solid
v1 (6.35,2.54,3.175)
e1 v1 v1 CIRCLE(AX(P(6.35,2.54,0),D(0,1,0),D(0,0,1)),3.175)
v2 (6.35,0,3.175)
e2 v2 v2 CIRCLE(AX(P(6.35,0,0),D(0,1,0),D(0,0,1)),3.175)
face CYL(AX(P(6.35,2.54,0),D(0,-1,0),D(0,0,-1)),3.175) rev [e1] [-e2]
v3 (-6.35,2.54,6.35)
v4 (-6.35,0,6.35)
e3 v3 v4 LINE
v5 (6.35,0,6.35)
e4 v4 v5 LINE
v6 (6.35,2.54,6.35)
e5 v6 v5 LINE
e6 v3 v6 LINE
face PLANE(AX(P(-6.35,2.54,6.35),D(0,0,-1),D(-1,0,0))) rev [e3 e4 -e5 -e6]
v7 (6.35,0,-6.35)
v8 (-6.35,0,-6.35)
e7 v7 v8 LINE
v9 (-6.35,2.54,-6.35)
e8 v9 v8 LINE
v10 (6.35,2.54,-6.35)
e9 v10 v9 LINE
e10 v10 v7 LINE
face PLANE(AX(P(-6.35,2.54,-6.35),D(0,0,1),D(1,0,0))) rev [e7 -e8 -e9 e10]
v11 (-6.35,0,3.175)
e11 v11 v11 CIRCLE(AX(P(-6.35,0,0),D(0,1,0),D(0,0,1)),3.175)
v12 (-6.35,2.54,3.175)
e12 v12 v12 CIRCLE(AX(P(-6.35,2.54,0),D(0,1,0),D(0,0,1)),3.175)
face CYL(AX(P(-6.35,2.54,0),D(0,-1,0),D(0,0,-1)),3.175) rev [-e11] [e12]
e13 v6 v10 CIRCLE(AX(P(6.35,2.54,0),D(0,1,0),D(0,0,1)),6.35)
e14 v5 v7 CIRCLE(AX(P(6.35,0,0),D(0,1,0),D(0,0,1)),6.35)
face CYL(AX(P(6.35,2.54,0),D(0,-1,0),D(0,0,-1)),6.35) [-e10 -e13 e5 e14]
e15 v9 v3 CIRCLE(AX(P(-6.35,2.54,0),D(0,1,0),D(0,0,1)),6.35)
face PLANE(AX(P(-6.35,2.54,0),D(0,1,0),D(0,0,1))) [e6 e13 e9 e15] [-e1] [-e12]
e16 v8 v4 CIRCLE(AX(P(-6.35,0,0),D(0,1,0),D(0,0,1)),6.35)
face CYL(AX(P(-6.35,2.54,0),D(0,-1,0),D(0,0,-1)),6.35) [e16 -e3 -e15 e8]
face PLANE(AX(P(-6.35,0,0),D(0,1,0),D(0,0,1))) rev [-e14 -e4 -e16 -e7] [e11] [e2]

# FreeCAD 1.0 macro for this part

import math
import FreeCAD as App
import Part
import Sketcher

V = App.Vector
Q = App.Units.Quantity

doc = App.newDocument("Part")
body = doc.addObject("PartDesign::Body", "Body")

# Sketch on XZ plane
sketch1 = body.newObject("Sketcher::SketchObject", "Sketch")
sketch1.AttachmentSupport = (doc.getObject("XZ_Plane"), [""])
sketch1.MapMode = "FlatFace"
sketch1.addGeometry([
    Part.LineSegment(V(6.3, -6.3, 0), V(-6.3, -6.3, 0)),  # 0
    Part.ArcOfCircle(Part.Circle(V(-6.3, 0, 0), V(0, 0, 1), 6.3), math.radians(90), math.radians(270)),  # 1
    Part.LineSegment(V(-6.3, 6.3, 0), V(6.3, 6.3, 0)),  # 2
    Part.ArcOfCircle(Part.Circle(V(6.3, 0, 0), V(0, 0, 1), 6.3), math.radians(-90), math.radians(90)),  # 3
    Part.Circle(V(6.3, 0, 0), V(0, 0, 1), 3.2),  # 4
    Part.Circle(V(-6.3, 0, 0), V(0, 0, 1), 3.2),  # 5
], False)
sketch1.addConstraint([
    Sketcher.Constraint("Tangent", 0, 2, 1, 2),
    Sketcher.Constraint("Tangent", 1, 1, 2, 1),
    Sketcher.Constraint("Tangent", 2, 2, 3, 2),
    Sketcher.Constraint("Tangent", 3, 1, 0, 1),
    Sketcher.Constraint("Horizontal", 0),
    Sketcher.Constraint("Horizontal", 2),
    Sketcher.Constraint("Coincident", 4, 3, 3, 3),
    Sketcher.Constraint("Coincident", 5, 3, 1, 3),
    Sketcher.Constraint("Equal", 4, 5),
    Sketcher.Constraint("Symmetric", 1, 3, 3, 3, -1, 1),
    Sketcher.Constraint("Diameter", 4, Q("0.25 in")),
    Sketcher.Constraint("Radius", 1, Q("0.25 in")),
    Sketcher.Constraint("DistanceX", 0, 2, 0, 1, Q("0.5 in")),
])
pad1 = body.newObject("PartDesign::Pad", "Pad")
pad1.Profile = sketch1
pad1.Length = Q("0.1 in")
pad1.Reversed = True

doc.recompute()
